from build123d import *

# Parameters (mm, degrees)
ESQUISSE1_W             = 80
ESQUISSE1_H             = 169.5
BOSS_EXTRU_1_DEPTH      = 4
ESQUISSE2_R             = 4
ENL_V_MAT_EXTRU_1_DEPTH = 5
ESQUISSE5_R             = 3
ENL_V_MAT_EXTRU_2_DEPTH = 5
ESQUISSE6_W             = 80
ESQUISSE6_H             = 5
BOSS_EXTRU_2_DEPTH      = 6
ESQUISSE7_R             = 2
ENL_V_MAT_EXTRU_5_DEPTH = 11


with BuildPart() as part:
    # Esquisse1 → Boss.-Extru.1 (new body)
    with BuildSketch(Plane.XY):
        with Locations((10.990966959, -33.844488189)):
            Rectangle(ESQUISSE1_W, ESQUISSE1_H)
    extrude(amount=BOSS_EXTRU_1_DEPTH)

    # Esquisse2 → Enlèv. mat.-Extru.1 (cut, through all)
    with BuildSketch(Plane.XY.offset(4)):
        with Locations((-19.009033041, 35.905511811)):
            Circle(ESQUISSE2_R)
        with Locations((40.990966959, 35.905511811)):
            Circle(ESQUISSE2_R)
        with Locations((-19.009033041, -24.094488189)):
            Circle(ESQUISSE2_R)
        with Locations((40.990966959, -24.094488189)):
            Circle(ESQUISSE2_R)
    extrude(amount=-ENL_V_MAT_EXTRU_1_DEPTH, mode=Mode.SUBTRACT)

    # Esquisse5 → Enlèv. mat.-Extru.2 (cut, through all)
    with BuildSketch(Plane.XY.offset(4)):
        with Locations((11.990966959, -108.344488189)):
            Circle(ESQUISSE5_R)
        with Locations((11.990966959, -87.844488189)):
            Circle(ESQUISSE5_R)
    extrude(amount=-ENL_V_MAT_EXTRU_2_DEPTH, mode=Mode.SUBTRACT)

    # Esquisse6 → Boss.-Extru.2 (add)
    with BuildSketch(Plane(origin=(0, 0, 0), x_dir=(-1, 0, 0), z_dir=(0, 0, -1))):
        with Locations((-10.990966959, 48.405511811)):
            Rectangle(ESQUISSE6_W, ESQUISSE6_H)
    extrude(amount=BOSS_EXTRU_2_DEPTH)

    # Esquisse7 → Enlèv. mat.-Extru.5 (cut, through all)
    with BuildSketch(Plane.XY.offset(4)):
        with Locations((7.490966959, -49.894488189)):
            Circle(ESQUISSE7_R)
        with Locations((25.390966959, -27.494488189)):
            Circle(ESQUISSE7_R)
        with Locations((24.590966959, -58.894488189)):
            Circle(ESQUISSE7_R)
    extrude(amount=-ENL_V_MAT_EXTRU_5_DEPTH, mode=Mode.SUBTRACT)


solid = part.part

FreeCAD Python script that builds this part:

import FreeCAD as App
import Part
import Sketcher
from FreeCAD import Vector
Q = App.Units.Quantity

doc = App.newDocument("Part")
body = doc.addObject("PartDesign::Body", "Body")

# Sketch on XY plane
sketch1 = body.newObject("Sketcher::SketchObject", "Sketch")
sketch1.AttachmentSupport = (doc.getObject("XY_Plane"), [""])
sketch1.MapMode = "FlatFace"
sketch1.addGeometry(Part.LineSegment(Vector(-29, 51, 0), Vector(-29, -119, 0)), False)
sketch1.addGeometry(Part.LineSegment(Vector(-29, -119, 0), Vector(51, -119, 0)), False)
sketch1.addGeometry(Part.LineSegment(Vector(51, -119, 0), Vector(51, 51, 0)), False)
sketch1.addGeometry(Part.LineSegment(Vector(51, 51, 0), Vector(-29, 51, 0)), False)
sketch1.addConstraint(Sketcher.Constraint("Coincident", 0, 2, 1, 1))
sketch1.addConstraint(Sketcher.Constraint("Coincident", 1, 2, 2, 1))
sketch1.addConstraint(Sketcher.Constraint("Coincident", 2, 2, 3, 1))
sketch1.addConstraint(Sketcher.Constraint("Coincident", 3, 2, 0, 1))
sketch1.addConstraint(Sketcher.Constraint("Vertical", 0))
sketch1.addConstraint(Sketcher.Constraint("Horizontal", 1))
sketch1.addConstraint(Sketcher.Constraint("Vertical", 2))
sketch1.addConstraint(Sketcher.Constraint("Horizontal", 3))
sketch1.addConstraint(Sketcher.Constraint("DistanceX", 1, 1, 1, 2, Q("80 mm")))
sketch1.addConstraint(Sketcher.Constraint("DistanceY", 0, 2, 0, 1, Q("169.5 mm")))
sketch1.addConstraint(Sketcher.Constraint("DistanceY", 0, 2, -1, 1, Q("118.594488 mm")))
sketch1.addConstraint(Sketcher.Constraint("DistanceX", 0, 2, -1, 1, Q("29.009033 mm")))
pad1 = body.newObject("PartDesign::Pad", "Pad")
pad1.Profile = sketch1
pad1.Length = 4

# Sketch on XY plane
sketch2 = body.newObject("Sketcher::SketchObject", "Sketch001")
sketch2.AttachmentSupport = (doc.getObject("XY_Plane"), [""])
sketch2.MapMode = "FlatFace"
sketch2.AttachmentOffset = App.Placement(Vector(0, 0, 4), App.Rotation())
sketch2.addGeometry(Part.Circle(Vector(-19, 35.9, 0), Vector(0, 0, 1), 4), False)
sketch2.addGeometry(Part.Circle(Vector(41, 35.9, 0), Vector(0, 0, 1), 4), False)
sketch2.addGeometry(Part.Circle(Vector(-19, -24.1, 0), Vector(0, 0, 1), 4), False)
sketch2.addGeometry(Part.Circle(Vector(41, -24.1, 0), Vector(0, 0, 1), 4), False)
sketch2.addConstraint(Sketcher.Constraint("Equal", 0, 1))
sketch2.addConstraint(Sketcher.Constraint("Equal", 1, 2))
sketch2.addConstraint(Sketcher.Constraint("Equal", 2, 3))
sketch2.addConstraint(Sketcher.Constraint("Horizontal", 0, 3, 1, 3))
sketch2.addConstraint(Sketcher.Constraint("Horizontal", 2, 3, 3, 3))
sketch2.addConstraint(Sketcher.Constraint("Vertical", 0, 3, 2, 3))
sketch2.addConstraint(Sketcher.Constraint("Vertical", 1, 3, 3, 3))
sketch2.addConstraint(Sketcher.Constraint("Diameter", 0, Q("8 mm")))
sketch2.addConstraint(Sketcher.Constraint("DistanceX", 0, 3, 1, 3, Q("60 mm")))
sketch2.addConstraint(Sketcher.Constraint("DistanceY", 2, 3, 0, 3, Q("60 mm")))
sketch2.addConstraint(Sketcher.Constraint("DistanceY", -1, 1, 0, 3, Q("35.905512 mm")))
sketch2.addConstraint(Sketcher.Constraint("DistanceX", 0, 3, -1, 1, Q("19.009033 mm")))
pocket1 = body.newObject("PartDesign::Pocket", "Pocket")
pocket1.Profile = sketch2
pocket1.Type = "ThroughAll"

# Sketch on XY plane
sketch3 = body.newObject("Sketcher::SketchObject", "Sketch002")
sketch3.AttachmentSupport = (doc.getObject("XY_Plane"), [""])
sketch3.MapMode = "FlatFace"
sketch3.AttachmentOffset = App.Placement(Vector(0, 0, 4), App.Rotation())
sketch3.addGeometry(Part.Circle(Vector(12, -108.3, 0), Vector(0, 0, 1), 3), False)
sketch3.addGeometry(Part.Circle(Vector(12, -87.8, 0), Vector(0, 0, 1), 3), False)
sketch3.addConstraint(Sketcher.Constraint("Equal", 0, 1))
sketch3.addConstraint(Sketcher.Constraint("Vertical", 0, 3, 1, 3))
sketch3.addConstraint(Sketcher.Constraint("Diameter", 0, Q("6 mm")))
sketch3.addConstraint(Sketcher.Constraint("DistanceY", 0, 3, 1, 3, Q("20.5 mm")))
sketch3.addConstraint(Sketcher.Constraint("DistanceY", 0, 3, -1, 1, Q("108.344488 mm")))
sketch3.addConstraint(Sketcher.Constraint("DistanceX", -1, 1, 0, 3, Q("11.990967 mm")))
pocket2 = body.newObject("PartDesign::Pocket", "Pocket001")
pocket2.Profile = sketch3
pocket2.Type = "ThroughAll"

# Sketch on XY plane
sketch4 = body.newObject("Sketcher::SketchObject", "Sketch003")
sketch4.AttachmentSupport = (doc.getObject("XY_Plane"), [""])
sketch4.MapMode = "FlatFace"
sketch4.addGeometry(Part.LineSegment(Vector(51, 51, 0), Vector(51, 46, 0)), False)
sketch4.addGeometry(Part.LineSegment(Vector(51, 46, 0), Vector(-29, 46, 0)), False)
sketch4.addGeometry(Part.LineSegment(Vector(-29, 46, 0), Vector(-29, 51, 0)), False)
sketch4.addGeometry(Part.LineSegment(Vector(-29, 51, 0), Vector(51, 51, 0)), False)
sketch4.addConstraint(Sketcher.Constraint("Coincident", 0, 2, 1, 1))
sketch4.addConstraint(Sketcher.Constraint("Coincident", 1, 2, 2, 1))
sketch4.addConstraint(Sketcher.Constraint("Coincident", 2, 2, 3, 1))
sketch4.addConstraint(Sketcher.Constraint("Coincident", 3, 2, 0, 1))
sketch4.addConstraint(Sketcher.Constraint("Vertical", 0))
sketch4.addConstraint(Sketcher.Constraint("Horizontal", 1))
sketch4.addConstraint(Sketcher.Constraint("Vertical", 2))
sketch4.addConstraint(Sketcher.Constraint("Horizontal", 3))
sketch4.addConstraint(Sketcher.Constraint("DistanceX", 1, 2, 1, 1, Q("80 mm")))
sketch4.addConstraint(Sketcher.Constraint("DistanceY", 0, 2, 0, 1, Q("5 mm")))
sketch4.addConstraint(Sketcher.Constraint("DistanceY", -1, 1, 0, 2, Q("45.905512 mm")))
sketch4.addConstraint(Sketcher.Constraint("DistanceX", -1, 1, 0, 2, Q("50.990967 mm")))
pad2 = body.newObject("PartDesign::Pad", "Pad001")
pad2.Profile = sketch4
pad2.Length = 6
pad2.Reversed = True

# Sketch on XY plane
sketch5 = body.newObject("Sketcher::SketchObject", "Sketch004")
sketch5.AttachmentSupport = (doc.getObject("XY_Plane"), [""])
sketch5.MapMode = "FlatFace"
sketch5.AttachmentOffset = App.Placement(Vector(0, 0, 4), App.Rotation())
sketch5.addGeometry(Part.Circle(Vector(7.5, -49.9, 0), Vector(0, 0, 1), 2), False)
sketch5.addGeometry(Part.Circle(Vector(25.4, -27.5, 0), Vector(0, 0, 1), 2), False)
sketch5.addGeometry(Part.Circle(Vector(24.6, -58.9, 0), Vector(0, 0, 1), 2), False)
sketch5.addConstraint(Sketcher.Constraint("Equal", 0, 1))
sketch5.addConstraint(Sketcher.Constraint("Equal", 1, 2))
sketch5.addConstraint(Sketcher.Constraint("Diameter", 0, Q("4 mm")))
sketch5.addConstraint(Sketcher.Constraint("DistanceY", 2, 3, 0, 3, Q("9 mm")))
sketch5.addConstraint(Sketcher.Constraint("DistanceX", 0, 3, 1, 3, Q("17.9 mm")))
sketch5.addConstraint(Sketcher.Constraint("DistanceY", 0, 3, 1, 3, Q("22.4 mm")))
sketch5.addConstraint(Sketcher.Constraint("DistanceX", 0, 3, 2, 3, Q("17.1 mm")))
sketch5.addConstraint(Sketcher.Constraint("DistanceY", 0, 3, -1, 1, Q("49.894488 mm")))
sketch5.addConstraint(Sketcher.Constraint("DistanceX", -1, 1, 0, 3, Q("7.490967 mm")))
pocket3 = body.newObject("PartDesign::Pocket", "Pocket002")
pocket3.Profile = sketch5
pocket3.Type = "ThroughAll"

doc.recompute()
